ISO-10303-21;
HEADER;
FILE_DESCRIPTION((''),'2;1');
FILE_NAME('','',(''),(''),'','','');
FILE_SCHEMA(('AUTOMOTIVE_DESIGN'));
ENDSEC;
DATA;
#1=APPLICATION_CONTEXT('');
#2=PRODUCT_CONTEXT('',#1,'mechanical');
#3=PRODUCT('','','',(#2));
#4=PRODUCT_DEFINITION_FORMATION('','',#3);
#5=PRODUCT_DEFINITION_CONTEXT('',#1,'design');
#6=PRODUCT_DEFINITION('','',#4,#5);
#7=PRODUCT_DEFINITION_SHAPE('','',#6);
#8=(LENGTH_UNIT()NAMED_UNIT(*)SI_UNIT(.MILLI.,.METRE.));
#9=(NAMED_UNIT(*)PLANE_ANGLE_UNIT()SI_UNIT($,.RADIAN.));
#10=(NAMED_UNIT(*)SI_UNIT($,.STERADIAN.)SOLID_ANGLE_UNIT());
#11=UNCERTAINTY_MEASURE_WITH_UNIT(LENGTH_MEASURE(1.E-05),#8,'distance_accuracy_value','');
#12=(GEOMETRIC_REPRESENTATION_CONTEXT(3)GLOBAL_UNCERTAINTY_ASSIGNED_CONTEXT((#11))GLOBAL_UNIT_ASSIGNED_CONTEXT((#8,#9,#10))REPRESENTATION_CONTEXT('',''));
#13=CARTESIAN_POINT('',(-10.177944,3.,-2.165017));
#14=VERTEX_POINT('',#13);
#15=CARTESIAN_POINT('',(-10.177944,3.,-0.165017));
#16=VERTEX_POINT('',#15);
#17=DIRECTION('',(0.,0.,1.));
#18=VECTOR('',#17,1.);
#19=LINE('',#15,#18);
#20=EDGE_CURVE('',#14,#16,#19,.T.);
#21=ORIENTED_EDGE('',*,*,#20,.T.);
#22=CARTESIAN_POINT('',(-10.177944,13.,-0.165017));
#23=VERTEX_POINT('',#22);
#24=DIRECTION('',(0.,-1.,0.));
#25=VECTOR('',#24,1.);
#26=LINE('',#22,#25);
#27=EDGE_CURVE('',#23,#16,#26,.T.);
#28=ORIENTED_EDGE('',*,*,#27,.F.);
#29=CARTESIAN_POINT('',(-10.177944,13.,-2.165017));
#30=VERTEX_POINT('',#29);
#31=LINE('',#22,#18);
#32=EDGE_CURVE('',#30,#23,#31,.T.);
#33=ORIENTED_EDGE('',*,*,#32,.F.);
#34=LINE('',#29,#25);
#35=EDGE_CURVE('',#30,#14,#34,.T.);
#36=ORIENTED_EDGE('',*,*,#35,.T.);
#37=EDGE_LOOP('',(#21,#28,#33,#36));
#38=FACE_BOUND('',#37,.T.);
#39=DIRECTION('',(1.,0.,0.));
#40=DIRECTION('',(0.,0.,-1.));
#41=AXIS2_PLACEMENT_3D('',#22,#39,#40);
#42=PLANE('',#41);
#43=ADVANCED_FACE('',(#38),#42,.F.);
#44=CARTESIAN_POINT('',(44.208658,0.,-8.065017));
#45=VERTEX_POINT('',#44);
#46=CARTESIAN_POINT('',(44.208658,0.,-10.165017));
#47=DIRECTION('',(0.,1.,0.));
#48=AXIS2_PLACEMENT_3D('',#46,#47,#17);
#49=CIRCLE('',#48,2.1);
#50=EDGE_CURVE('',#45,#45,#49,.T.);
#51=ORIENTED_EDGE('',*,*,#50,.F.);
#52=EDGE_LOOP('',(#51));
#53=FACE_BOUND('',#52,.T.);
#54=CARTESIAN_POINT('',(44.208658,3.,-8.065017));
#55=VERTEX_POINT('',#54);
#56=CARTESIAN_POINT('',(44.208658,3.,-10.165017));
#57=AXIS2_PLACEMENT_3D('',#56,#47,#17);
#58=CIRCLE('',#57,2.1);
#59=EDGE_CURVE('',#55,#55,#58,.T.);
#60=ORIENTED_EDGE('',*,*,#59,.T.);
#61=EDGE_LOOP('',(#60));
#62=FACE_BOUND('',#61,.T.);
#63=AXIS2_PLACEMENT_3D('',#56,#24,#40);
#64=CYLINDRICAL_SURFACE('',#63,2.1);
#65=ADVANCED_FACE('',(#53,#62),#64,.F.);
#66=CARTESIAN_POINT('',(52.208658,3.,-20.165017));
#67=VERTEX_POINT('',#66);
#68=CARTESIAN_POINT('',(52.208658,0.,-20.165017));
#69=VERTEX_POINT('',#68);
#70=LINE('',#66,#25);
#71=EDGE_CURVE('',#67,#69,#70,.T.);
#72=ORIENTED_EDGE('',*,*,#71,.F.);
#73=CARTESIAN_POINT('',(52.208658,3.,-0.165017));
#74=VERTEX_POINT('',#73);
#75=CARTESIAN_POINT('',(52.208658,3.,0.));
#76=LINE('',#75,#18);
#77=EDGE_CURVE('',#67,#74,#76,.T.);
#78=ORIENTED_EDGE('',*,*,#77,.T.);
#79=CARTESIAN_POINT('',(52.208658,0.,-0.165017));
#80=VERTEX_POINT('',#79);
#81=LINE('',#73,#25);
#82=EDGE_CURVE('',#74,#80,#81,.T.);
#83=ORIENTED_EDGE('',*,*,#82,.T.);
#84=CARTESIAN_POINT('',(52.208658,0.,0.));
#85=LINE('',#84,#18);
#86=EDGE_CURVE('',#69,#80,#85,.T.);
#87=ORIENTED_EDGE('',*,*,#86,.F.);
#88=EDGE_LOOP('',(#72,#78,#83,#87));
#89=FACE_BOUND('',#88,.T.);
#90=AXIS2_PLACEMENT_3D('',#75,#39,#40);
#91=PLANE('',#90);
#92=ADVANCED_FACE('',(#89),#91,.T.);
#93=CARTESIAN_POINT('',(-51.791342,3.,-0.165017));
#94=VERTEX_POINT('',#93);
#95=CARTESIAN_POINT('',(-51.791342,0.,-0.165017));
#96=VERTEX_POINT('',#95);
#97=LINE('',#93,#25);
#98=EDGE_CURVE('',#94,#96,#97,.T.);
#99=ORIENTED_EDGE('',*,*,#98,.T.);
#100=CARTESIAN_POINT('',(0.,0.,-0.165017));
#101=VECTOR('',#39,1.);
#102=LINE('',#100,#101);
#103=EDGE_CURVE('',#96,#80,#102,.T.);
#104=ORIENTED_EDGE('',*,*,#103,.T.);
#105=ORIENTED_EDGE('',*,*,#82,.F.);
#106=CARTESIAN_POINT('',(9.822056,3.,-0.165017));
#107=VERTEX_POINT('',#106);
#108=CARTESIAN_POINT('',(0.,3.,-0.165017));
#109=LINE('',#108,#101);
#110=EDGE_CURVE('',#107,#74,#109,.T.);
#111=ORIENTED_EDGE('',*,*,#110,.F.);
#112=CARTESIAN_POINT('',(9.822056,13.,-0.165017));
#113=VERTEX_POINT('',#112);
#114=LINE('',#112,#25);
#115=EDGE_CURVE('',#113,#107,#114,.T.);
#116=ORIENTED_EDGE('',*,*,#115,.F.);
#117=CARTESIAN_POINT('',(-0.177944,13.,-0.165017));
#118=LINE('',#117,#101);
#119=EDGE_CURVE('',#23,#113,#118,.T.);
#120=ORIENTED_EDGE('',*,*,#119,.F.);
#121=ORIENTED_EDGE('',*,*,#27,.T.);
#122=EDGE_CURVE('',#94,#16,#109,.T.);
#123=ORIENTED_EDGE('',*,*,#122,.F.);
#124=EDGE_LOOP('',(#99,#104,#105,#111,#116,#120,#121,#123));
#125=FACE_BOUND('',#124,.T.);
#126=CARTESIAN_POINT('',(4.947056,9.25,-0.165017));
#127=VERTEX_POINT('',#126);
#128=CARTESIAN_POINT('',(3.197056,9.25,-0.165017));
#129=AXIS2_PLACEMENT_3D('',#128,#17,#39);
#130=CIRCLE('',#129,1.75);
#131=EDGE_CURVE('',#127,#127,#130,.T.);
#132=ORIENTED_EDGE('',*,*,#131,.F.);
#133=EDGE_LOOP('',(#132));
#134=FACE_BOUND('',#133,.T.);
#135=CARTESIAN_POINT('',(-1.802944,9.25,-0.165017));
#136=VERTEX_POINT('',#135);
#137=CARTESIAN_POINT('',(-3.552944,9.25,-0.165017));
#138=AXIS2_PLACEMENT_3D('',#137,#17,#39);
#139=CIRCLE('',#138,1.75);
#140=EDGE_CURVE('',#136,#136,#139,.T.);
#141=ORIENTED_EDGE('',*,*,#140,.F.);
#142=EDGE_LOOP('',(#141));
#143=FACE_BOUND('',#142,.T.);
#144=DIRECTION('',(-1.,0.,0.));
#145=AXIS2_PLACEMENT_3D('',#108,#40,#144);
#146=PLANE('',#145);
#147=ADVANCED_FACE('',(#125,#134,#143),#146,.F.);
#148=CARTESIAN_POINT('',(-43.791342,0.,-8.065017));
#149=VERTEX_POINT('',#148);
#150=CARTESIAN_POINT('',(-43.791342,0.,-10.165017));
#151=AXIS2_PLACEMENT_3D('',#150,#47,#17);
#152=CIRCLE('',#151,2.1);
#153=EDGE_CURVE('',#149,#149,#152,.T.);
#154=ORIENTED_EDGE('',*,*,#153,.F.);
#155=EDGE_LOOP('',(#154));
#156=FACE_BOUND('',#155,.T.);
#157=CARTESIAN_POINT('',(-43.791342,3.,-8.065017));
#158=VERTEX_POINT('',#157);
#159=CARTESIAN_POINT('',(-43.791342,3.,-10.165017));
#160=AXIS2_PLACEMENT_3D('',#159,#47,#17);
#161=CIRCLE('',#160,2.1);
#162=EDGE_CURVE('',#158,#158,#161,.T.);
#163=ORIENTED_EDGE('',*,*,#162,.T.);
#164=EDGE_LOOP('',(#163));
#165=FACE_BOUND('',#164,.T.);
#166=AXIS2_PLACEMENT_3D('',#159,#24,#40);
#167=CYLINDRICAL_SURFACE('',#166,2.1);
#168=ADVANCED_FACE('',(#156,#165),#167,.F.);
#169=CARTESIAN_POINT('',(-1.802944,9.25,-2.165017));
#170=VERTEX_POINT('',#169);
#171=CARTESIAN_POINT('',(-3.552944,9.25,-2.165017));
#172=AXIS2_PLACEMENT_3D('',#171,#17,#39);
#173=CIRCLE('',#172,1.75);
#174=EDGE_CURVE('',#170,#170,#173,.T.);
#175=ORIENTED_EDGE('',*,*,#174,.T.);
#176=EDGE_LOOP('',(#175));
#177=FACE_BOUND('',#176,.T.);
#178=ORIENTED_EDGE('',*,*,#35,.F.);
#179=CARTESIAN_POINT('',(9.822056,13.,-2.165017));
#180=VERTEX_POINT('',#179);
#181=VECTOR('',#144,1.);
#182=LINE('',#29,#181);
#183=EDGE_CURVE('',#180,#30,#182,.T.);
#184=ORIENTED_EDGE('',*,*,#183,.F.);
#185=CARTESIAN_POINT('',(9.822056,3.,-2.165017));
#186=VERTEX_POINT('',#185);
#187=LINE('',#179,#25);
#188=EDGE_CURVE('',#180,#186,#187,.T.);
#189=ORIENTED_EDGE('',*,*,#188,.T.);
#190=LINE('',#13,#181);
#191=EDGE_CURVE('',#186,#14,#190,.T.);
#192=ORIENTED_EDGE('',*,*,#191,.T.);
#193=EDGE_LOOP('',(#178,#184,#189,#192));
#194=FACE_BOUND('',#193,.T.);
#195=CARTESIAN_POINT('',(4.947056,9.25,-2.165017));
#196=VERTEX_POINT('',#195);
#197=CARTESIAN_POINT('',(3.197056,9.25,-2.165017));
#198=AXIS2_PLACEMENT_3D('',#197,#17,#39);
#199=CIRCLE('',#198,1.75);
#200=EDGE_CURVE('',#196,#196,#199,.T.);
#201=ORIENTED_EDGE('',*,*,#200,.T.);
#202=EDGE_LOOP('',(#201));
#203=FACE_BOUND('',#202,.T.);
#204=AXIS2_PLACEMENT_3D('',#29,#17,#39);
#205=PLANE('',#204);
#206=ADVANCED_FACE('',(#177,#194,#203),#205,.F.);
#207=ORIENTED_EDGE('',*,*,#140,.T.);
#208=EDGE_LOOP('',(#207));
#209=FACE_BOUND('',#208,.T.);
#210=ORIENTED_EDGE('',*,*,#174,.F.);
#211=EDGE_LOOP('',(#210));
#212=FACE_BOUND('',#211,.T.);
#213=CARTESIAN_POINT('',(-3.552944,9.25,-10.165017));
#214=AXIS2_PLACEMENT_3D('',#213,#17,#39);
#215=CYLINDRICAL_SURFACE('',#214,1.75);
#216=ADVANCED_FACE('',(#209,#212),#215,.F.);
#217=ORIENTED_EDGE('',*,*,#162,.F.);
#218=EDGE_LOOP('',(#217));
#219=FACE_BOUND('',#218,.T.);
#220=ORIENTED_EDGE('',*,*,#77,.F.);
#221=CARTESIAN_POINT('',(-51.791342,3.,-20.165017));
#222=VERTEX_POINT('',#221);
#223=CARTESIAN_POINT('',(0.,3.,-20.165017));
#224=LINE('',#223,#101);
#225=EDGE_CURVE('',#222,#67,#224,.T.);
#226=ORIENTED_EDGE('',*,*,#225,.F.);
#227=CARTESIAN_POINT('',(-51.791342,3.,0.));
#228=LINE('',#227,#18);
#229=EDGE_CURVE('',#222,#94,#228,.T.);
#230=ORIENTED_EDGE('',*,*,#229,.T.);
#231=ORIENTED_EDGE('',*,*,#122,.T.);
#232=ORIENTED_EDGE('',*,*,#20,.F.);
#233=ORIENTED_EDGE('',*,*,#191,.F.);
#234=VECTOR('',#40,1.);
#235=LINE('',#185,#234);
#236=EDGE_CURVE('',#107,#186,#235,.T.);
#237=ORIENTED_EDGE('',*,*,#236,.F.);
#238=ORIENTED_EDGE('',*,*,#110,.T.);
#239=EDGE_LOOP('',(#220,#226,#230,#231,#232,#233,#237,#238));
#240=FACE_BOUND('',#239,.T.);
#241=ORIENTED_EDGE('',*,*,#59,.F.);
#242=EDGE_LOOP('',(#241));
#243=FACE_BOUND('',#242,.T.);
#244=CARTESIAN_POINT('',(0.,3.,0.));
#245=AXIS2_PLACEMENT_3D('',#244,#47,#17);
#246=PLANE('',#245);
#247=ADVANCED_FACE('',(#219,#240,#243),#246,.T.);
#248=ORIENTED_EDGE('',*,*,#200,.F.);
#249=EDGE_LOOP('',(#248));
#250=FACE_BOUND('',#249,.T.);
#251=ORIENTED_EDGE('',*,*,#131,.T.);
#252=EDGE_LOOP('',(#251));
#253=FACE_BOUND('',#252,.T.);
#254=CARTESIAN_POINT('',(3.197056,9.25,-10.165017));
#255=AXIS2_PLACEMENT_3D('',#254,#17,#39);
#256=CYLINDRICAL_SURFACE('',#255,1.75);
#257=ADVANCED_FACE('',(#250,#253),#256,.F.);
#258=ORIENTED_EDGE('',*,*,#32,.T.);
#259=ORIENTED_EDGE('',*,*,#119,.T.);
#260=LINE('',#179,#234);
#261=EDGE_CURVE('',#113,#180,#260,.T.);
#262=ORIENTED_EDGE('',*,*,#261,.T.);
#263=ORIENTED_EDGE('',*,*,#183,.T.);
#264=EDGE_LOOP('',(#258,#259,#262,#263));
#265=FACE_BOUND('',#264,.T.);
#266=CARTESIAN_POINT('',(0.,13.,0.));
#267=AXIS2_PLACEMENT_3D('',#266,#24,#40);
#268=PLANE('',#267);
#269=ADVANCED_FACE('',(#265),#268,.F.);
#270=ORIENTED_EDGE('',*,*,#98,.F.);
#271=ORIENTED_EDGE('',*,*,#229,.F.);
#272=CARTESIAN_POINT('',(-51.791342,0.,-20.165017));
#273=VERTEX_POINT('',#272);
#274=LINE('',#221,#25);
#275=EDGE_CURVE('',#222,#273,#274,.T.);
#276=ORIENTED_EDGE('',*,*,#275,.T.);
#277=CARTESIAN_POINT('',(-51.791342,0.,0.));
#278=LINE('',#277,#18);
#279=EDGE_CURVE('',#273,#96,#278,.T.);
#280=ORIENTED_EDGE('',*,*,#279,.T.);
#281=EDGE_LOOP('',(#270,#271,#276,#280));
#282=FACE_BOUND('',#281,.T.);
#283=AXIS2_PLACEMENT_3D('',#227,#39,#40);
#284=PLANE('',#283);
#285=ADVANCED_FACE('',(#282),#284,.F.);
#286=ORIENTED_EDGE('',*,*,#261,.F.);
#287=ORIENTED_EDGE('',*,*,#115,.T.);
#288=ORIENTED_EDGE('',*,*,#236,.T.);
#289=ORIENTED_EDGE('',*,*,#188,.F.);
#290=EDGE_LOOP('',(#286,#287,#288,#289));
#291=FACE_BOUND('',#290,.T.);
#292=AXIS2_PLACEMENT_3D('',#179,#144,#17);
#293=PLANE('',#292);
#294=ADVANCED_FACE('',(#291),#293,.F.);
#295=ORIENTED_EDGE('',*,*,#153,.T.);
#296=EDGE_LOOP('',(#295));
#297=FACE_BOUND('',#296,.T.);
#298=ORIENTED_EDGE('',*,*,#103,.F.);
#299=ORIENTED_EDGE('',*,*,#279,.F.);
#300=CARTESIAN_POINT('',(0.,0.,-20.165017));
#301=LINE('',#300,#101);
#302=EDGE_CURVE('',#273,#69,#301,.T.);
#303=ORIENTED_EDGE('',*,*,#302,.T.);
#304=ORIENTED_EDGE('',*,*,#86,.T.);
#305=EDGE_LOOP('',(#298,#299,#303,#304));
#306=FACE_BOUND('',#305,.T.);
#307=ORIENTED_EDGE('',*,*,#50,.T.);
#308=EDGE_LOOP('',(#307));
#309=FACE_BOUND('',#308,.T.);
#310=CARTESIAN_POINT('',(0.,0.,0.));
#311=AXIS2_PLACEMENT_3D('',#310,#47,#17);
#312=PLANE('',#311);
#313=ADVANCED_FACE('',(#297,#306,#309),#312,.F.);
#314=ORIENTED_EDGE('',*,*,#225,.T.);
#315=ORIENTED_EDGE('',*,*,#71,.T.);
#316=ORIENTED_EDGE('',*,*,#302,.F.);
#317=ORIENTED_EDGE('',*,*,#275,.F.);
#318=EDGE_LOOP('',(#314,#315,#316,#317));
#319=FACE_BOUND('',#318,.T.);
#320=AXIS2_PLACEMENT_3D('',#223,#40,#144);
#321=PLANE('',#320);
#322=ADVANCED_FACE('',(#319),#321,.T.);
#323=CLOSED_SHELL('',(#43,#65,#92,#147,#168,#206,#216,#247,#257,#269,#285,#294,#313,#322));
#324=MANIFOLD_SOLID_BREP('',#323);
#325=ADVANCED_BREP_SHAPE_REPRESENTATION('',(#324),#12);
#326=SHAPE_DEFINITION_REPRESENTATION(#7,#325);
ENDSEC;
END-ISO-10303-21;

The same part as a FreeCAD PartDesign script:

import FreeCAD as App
import Part
import Sketcher

V = App.Vector


def add_polygon(sketch, points):
    """Adds a closed chain of lines whose ends are joined by coincident constraints."""
    first, n = sketch.GeometryCount, len(points)
    for a, b in zip(points, points[1:] + points[:1]):
        sketch.addGeometry(Part.LineSegment(App.Vector(*a, 0), App.Vector(*b, 0)), False)
    for i in range(n):
        sketch.addConstraint(Sketcher.Constraint("Coincident", first + i, 2, first + (i + 1) % n, 1))

doc = App.newDocument("Part")
body = doc.addObject("PartDesign::Body", "Body")

# Sketch on XZ plane
sketch1 = doc.addObject("Sketcher::SketchObject", "Sketch")
body.addObject(sketch1)
sketch1.AttachmentSupport = (doc.XZ_Plane, [""])
sketch1.MapMode = "FlatFace"
add_polygon(sketch1, [(-51.8, -20.2), (-51.8, -0.2), (52.2, -0.2), (52.2, -20.2)])  # lines 0-3
sketch1.addGeometry(Part.Circle(V(-43.8, -10.2, 0), V(0, 0, 1), 2.1), False)  # 4
sketch1.addGeometry(Part.Circle(V(44.2, -10.2, 0), V(0, 0, 1), 2.1), False)  # 5
sketch1.addConstraint([
    Sketcher.Constraint("Vertical", 0),
    Sketcher.Constraint("Horizontal", 1),
    Sketcher.Constraint("Vertical", 2),
    Sketcher.Constraint("Horizontal", 3),
    Sketcher.Constraint("Equal", 4, 5),
    Sketcher.Constraint("Horizontal", 4, 3, 5, 3),
    Sketcher.Constraint("Diameter", 4, 4.2),
    Sketcher.Constraint("DistanceX", 1, 1, 1, 2, 104.0),
    Sketcher.Constraint("DistanceY", 0, 1, 0, 2, 20.0),
    Sketcher.Constraint("DistanceX", 4, 3, 5, 3, 88.0),
    Sketcher.Constraint("DistanceX", 0, 2, 4, 3, 8.0),
    Sketcher.Constraint("DistanceY", 4, 3, 0, 2, 10.0),
    Sketcher.Constraint("DistanceX", 4, 3, -1, 1, 43.791342),
    Sketcher.Constraint("DistanceY", 4, 3, -1, 1, 10.165017),
])
pad1 = doc.addObject("PartDesign::Pad", "Pad")
body.addObject(pad1)
pad1.Profile = sketch1
pad1.Length = 3
pad1.Reversed = True

# Sketch on XZ plane
sketch2 = doc.addObject("Sketcher::SketchObject", "Sketch001")
body.addObject(sketch2)
sketch2.AttachmentSupport = (doc.XZ_Plane, [""])
sketch2.MapMode = "FlatFace"
sketch2.AttachmentOffset = App.Placement(V(0, 0, -3), App.Rotation())
add_polygon(sketch2, [(-10.2, -0.2), (9.8, -0.2), (9.8, -2.2), (-10.2, -2.2)])  # lines 0-3
sketch2.addConstraint([
    Sketcher.Constraint("Horizontal", 0),
    Sketcher.Constraint("Vertical", 1),
    Sketcher.Constraint("Horizontal", 2),
    Sketcher.Constraint("Vertical", 3),
    Sketcher.Constraint("DistanceX", 0, 1, 0, 2, 20.0),
    Sketcher.Constraint("DistanceY", 1, 2, 1, 1, 2.0),
    Sketcher.Constraint("DistanceX", -1, 1, 0, 2, 9.822056),
    Sketcher.Constraint("DistanceY", 0, 2, -1, 1, 0.165017),
])
pad2 = doc.addObject("PartDesign::Pad", "Pad001")
body.addObject(pad2)
pad2.Profile = sketch2
pad2.Length = 10
pad2.Reversed = True

# Sketch on XY plane
sketch3 = doc.addObject("Sketcher::SketchObject", "Sketch002")
body.addObject(sketch3)
sketch3.AttachmentSupport = (doc.XY_Plane, [""])
sketch3.MapMode = "FlatFace"
sketch3.AttachmentOffset = App.Placement(V(0, 0, -0.165017), App.Rotation())
sketch3.addGeometry([
    Part.Circle(V(-3.6, 9.2, 0), V(0, 0, 1), 1.8),
    Part.Circle(V(3.2, 9.2, 0), V(0, 0, 1), 1.8),
], False)
sketch3.addConstraint([
    Sketcher.Constraint("Equal", 0, 1),
    Sketcher.Constraint("Horizontal", 0, 3, 1, 3),
    Sketcher.Constraint("Diameter", 0, 3.5),
    Sketcher.Constraint("DistanceY", -1, 1, 0, 3, 9.25),
    Sketcher.Constraint("DistanceX", 0, 3, 1, 3, 6.75),
    Sketcher.Constraint("DistanceX", 0, 3, -1, 1, 3.552944),
])
pocket1 = doc.addObject("PartDesign::Pocket", "Pocket")
body.addObject(pocket1)
pocket1.Profile = sketch3
pocket1.Length = 10

doc.recompute()
